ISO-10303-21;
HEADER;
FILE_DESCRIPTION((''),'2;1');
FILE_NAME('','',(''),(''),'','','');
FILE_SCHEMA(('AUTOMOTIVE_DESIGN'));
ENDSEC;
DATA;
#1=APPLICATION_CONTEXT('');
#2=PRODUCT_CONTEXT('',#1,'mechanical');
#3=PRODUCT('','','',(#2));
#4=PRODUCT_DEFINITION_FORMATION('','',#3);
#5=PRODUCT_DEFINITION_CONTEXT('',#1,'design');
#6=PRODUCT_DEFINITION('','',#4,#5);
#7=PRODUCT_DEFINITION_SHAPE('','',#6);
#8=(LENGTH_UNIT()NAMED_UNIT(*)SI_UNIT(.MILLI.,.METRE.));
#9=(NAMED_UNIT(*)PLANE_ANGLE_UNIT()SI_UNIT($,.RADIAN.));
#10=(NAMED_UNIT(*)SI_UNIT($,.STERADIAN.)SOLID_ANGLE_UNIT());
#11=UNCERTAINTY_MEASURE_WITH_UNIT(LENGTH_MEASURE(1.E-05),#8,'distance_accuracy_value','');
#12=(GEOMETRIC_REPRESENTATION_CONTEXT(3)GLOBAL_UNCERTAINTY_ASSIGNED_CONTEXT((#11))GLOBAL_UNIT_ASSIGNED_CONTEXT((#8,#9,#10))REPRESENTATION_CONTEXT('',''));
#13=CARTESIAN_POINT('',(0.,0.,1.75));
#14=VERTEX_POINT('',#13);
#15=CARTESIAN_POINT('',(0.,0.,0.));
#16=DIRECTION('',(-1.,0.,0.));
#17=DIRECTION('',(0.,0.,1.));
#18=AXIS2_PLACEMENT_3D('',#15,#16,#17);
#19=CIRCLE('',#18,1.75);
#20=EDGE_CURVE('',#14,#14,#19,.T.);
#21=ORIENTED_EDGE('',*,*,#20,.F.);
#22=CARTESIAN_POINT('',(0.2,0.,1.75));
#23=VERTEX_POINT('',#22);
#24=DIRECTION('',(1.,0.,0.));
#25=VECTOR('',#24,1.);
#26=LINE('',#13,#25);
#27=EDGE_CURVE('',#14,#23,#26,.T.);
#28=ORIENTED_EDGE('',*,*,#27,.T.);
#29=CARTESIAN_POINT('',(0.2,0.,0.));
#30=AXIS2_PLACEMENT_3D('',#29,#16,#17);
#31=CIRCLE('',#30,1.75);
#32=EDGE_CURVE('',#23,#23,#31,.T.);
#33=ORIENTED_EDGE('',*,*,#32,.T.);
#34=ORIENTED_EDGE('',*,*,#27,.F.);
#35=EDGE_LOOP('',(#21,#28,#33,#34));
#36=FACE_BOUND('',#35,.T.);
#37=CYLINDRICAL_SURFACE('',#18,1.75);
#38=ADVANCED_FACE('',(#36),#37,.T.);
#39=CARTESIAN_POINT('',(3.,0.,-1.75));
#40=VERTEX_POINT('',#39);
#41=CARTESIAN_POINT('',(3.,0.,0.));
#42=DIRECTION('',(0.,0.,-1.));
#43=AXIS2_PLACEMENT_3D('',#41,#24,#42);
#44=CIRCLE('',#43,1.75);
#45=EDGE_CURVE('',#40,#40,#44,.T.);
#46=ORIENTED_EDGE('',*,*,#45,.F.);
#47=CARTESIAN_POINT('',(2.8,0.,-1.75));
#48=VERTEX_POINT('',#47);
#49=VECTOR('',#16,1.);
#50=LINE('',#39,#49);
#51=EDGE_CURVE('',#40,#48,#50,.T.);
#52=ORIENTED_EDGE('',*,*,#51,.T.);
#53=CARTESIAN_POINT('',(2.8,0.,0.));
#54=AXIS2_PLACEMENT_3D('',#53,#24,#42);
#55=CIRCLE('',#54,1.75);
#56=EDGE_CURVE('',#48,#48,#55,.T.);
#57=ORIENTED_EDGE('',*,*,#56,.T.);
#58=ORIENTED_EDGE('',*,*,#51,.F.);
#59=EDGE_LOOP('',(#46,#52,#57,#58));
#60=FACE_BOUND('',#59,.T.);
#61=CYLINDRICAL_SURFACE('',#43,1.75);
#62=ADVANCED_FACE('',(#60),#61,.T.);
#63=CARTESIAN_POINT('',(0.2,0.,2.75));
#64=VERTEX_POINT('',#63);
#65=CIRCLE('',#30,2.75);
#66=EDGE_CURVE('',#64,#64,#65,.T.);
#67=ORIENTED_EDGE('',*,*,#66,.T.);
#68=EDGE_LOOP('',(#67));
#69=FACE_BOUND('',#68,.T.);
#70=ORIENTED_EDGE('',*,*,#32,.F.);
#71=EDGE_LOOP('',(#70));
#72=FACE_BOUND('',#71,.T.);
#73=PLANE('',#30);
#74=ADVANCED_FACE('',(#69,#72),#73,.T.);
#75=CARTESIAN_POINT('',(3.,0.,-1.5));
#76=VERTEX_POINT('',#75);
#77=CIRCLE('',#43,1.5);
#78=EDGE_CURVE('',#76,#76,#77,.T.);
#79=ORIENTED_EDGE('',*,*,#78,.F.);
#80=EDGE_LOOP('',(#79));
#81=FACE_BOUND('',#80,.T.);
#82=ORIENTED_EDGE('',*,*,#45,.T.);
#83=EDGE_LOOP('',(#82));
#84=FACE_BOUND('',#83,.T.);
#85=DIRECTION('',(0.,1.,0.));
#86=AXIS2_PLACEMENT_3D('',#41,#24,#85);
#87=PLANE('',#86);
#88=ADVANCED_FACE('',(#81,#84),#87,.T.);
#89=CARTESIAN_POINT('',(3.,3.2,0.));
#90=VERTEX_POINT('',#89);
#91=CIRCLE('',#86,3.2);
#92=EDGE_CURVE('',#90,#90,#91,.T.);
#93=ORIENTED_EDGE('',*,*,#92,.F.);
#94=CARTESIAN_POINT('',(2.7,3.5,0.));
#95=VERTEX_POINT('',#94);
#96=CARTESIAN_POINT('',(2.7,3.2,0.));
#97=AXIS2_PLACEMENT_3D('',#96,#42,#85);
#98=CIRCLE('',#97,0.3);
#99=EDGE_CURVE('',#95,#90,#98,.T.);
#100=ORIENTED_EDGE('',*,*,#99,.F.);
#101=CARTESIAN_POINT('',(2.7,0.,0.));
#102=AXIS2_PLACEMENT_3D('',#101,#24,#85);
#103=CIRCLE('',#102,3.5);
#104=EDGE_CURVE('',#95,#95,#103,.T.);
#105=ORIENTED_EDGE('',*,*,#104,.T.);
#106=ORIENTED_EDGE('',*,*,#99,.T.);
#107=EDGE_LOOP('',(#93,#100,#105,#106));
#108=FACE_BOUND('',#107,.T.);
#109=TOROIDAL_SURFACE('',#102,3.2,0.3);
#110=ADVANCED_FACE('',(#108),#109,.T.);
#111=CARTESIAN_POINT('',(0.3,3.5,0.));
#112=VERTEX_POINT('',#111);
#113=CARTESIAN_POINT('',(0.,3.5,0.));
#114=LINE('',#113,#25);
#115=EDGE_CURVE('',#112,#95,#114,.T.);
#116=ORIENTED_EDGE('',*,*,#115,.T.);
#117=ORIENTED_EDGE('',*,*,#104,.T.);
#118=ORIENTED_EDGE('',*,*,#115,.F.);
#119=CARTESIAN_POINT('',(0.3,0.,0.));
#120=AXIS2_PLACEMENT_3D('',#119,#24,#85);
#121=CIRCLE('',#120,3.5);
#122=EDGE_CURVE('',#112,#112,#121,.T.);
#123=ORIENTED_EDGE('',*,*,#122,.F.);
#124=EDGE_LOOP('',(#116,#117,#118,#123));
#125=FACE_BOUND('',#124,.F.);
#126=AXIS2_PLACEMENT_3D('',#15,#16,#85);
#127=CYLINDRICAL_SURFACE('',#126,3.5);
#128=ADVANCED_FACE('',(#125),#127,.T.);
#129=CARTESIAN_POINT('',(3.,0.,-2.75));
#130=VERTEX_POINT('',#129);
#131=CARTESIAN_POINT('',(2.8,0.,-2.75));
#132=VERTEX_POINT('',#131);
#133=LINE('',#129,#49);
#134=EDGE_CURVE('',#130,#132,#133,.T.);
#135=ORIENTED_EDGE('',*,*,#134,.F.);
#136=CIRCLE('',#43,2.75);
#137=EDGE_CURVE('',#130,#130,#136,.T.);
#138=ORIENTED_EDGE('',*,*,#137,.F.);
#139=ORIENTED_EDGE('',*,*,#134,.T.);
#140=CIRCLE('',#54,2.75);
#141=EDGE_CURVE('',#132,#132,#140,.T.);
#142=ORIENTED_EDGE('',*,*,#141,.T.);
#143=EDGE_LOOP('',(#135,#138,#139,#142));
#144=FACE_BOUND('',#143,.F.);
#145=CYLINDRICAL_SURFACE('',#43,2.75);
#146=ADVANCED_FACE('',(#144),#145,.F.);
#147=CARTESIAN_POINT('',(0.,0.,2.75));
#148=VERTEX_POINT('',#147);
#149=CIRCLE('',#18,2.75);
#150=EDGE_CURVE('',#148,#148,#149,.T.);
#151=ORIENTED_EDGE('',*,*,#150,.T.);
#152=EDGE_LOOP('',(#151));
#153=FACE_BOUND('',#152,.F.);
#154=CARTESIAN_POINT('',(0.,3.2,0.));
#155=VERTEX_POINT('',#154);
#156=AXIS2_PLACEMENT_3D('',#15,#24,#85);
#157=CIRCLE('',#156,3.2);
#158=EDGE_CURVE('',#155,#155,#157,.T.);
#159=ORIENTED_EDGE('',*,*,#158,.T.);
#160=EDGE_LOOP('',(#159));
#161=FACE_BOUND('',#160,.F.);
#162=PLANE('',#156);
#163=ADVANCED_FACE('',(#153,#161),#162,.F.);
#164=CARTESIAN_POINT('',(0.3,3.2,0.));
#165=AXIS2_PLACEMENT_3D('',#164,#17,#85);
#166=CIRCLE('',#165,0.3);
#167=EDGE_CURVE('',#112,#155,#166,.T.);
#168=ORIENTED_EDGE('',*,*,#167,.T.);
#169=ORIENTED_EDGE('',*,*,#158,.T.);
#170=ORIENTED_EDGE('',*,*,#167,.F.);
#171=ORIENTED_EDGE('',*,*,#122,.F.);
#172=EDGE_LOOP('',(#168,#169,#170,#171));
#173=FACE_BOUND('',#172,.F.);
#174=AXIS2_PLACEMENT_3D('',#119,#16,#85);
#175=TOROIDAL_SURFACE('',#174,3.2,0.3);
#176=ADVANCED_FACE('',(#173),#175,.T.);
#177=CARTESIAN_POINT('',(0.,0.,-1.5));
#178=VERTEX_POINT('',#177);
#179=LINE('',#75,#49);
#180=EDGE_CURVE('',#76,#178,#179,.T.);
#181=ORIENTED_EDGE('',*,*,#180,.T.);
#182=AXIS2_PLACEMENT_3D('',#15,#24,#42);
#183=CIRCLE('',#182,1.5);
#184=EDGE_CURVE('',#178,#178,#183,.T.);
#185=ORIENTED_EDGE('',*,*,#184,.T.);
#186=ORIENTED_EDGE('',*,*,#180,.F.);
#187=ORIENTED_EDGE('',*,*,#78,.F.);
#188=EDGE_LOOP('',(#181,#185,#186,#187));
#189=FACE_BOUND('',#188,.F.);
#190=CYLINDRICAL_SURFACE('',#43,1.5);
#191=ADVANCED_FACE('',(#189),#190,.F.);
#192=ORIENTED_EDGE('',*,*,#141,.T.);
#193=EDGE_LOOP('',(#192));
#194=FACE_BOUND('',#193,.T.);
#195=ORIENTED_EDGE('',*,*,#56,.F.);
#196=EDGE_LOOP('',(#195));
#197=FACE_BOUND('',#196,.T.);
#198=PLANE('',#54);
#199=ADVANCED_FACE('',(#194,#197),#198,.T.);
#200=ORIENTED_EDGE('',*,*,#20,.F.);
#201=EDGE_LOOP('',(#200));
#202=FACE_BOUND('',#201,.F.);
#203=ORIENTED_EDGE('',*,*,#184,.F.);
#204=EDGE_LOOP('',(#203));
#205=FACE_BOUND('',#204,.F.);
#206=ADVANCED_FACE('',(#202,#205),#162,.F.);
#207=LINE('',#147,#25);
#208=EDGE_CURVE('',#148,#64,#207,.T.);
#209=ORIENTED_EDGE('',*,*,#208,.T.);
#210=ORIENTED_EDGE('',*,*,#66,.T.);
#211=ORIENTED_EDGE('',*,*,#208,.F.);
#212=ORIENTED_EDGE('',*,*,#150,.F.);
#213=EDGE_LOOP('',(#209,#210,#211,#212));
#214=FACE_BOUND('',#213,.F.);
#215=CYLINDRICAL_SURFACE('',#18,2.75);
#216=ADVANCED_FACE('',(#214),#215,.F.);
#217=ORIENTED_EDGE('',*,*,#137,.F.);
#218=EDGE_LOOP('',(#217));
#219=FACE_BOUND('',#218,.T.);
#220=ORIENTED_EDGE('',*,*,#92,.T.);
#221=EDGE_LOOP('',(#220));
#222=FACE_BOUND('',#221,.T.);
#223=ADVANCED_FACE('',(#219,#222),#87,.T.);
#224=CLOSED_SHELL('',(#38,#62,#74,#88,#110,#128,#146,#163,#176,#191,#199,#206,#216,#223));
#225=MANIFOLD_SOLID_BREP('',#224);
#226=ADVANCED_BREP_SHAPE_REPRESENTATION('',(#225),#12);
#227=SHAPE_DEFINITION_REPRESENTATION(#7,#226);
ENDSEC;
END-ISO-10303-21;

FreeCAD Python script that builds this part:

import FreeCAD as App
import Part
import Sketcher

V = App.Vector
Q = App.Units.Quantity


def edges_at(feature, points):
    """Names of the edges that pass closest to the given points."""
    edges = feature.Shape.Edges
    near = lambda p: min(range(len(edges)), key=lambda i: edges[i].distToShape(Part.Vertex(*p))[0])
    return sorted({f"Edge{near(p) + 1}" for p in points})

doc = App.newDocument("Part")
body = doc.addObject("PartDesign::Body", "Body")

# Sketch on YZ plane
sketch1 = body.newObject("Sketcher::SketchObject", "Sketch")
sketch1.AttachmentSupport = (doc.getObject("YZ_Plane"), [""])
sketch1.MapMode = "FlatFace"
sketch1.addGeometry(Part.Circle(V(0, 0, 0), V(0, 0, 1), 3.5), False)
sketch1.addConstraint([
    Sketcher.Constraint("Coincident", 0, 3, -1, 1),
    Sketcher.Constraint("Diameter", 0, Q("7 mm")),
])
pad1 = body.newObject("PartDesign::Pad", "Pad")
pad1.Profile = sketch1
pad1.Length = 3

# Sketch on YZ plane
sketch2 = body.newObject("Sketcher::SketchObject", "Sketch001")
sketch2.AttachmentSupport = (doc.getObject("YZ_Plane"), [""])
sketch2.MapMode = "FlatFace"
sketch2.AttachmentOffset = App.Placement(V(0, 0, 3), App.Rotation())
sketch2.addGeometry(Part.Circle(V(0, 0, 0), V(0, 0, 1), 1.5), False)
sketch2.addConstraint([
    Sketcher.Constraint("Coincident", 0, 3, -1, 1),
    Sketcher.Constraint("Diameter", 0, Q("3 mm")),
])
pocket1 = body.newObject("PartDesign::Pocket", "Pocket")
pocket1.Profile = sketch2
pocket1.Length = 3

# Sketch on YZ plane
sketch3 = body.newObject("Sketcher::SketchObject", "Sketch002")
sketch3.AttachmentSupport = (doc.getObject("YZ_Plane"), [""])
sketch3.MapMode = "FlatFace"
sketch3.AttachmentOffset = App.Placement(V(0, 0, 3), App.Rotation())
sketch3.addGeometry([
    Part.Circle(V(0, 0, 0), V(0, 0, 1), 2.8),
    Part.Circle(V(0, 0, 0), V(0, 0, 1), 1.8),
], False)
sketch3.addConstraint([
    Sketcher.Constraint("Coincident", 0, 3, -1, 1),
    Sketcher.Constraint("Coincident", 1, 3, -1, 1),
    Sketcher.Constraint("Diameter", 0, Q("5.5 mm")),
    Sketcher.Constraint("Diameter", 1, Q("3.5 mm")),
])
pocket2 = body.newObject("PartDesign::Pocket", "Pocket001")
pocket2.Profile = sketch3
pocket2.Length = 0.2

# Sketch on YZ plane
sketch4 = body.newObject("Sketcher::SketchObject", "Sketch003")
sketch4.AttachmentSupport = (doc.getObject("YZ_Plane"), [""])
sketch4.MapMode = "FlatFace"
sketch4.addGeometry([
    Part.Circle(V(0, 0, 0), V(0, 0, 1), 2.8),
    Part.Circle(V(0, 0, 0), V(0, 0, 1), 1.8),
], False)
sketch4.addConstraint([
    Sketcher.Constraint("Coincident", 0, 3, -1, 1),
    Sketcher.Constraint("Coincident", 1, 3, -1, 1),
    Sketcher.Constraint("Diameter", 0, Q("5.5 mm")),
    Sketcher.Constraint("Diameter", 1, Q("3.5 mm")),
])
pocket3 = body.newObject("PartDesign::Pocket", "Pocket002")
pocket3.Profile = sketch4
pocket3.Length = 0.2
pocket3.Reversed = True
doc.recompute()

fillet = body.newObject("PartDesign::Fillet", "Fillet")
fillet.Base = (pocket3, edges_at(pocket3, [(3, -3.5, 0)]))
fillet.Radius = 0.3
doc.recompute()

fillet2 = body.newObject("PartDesign::Fillet", "Fillet001")
fillet2.Base = (fillet, edges_at(fillet, [(0, -3.5, 0)]))
fillet2.Radius = 0.3

doc.recompute()
